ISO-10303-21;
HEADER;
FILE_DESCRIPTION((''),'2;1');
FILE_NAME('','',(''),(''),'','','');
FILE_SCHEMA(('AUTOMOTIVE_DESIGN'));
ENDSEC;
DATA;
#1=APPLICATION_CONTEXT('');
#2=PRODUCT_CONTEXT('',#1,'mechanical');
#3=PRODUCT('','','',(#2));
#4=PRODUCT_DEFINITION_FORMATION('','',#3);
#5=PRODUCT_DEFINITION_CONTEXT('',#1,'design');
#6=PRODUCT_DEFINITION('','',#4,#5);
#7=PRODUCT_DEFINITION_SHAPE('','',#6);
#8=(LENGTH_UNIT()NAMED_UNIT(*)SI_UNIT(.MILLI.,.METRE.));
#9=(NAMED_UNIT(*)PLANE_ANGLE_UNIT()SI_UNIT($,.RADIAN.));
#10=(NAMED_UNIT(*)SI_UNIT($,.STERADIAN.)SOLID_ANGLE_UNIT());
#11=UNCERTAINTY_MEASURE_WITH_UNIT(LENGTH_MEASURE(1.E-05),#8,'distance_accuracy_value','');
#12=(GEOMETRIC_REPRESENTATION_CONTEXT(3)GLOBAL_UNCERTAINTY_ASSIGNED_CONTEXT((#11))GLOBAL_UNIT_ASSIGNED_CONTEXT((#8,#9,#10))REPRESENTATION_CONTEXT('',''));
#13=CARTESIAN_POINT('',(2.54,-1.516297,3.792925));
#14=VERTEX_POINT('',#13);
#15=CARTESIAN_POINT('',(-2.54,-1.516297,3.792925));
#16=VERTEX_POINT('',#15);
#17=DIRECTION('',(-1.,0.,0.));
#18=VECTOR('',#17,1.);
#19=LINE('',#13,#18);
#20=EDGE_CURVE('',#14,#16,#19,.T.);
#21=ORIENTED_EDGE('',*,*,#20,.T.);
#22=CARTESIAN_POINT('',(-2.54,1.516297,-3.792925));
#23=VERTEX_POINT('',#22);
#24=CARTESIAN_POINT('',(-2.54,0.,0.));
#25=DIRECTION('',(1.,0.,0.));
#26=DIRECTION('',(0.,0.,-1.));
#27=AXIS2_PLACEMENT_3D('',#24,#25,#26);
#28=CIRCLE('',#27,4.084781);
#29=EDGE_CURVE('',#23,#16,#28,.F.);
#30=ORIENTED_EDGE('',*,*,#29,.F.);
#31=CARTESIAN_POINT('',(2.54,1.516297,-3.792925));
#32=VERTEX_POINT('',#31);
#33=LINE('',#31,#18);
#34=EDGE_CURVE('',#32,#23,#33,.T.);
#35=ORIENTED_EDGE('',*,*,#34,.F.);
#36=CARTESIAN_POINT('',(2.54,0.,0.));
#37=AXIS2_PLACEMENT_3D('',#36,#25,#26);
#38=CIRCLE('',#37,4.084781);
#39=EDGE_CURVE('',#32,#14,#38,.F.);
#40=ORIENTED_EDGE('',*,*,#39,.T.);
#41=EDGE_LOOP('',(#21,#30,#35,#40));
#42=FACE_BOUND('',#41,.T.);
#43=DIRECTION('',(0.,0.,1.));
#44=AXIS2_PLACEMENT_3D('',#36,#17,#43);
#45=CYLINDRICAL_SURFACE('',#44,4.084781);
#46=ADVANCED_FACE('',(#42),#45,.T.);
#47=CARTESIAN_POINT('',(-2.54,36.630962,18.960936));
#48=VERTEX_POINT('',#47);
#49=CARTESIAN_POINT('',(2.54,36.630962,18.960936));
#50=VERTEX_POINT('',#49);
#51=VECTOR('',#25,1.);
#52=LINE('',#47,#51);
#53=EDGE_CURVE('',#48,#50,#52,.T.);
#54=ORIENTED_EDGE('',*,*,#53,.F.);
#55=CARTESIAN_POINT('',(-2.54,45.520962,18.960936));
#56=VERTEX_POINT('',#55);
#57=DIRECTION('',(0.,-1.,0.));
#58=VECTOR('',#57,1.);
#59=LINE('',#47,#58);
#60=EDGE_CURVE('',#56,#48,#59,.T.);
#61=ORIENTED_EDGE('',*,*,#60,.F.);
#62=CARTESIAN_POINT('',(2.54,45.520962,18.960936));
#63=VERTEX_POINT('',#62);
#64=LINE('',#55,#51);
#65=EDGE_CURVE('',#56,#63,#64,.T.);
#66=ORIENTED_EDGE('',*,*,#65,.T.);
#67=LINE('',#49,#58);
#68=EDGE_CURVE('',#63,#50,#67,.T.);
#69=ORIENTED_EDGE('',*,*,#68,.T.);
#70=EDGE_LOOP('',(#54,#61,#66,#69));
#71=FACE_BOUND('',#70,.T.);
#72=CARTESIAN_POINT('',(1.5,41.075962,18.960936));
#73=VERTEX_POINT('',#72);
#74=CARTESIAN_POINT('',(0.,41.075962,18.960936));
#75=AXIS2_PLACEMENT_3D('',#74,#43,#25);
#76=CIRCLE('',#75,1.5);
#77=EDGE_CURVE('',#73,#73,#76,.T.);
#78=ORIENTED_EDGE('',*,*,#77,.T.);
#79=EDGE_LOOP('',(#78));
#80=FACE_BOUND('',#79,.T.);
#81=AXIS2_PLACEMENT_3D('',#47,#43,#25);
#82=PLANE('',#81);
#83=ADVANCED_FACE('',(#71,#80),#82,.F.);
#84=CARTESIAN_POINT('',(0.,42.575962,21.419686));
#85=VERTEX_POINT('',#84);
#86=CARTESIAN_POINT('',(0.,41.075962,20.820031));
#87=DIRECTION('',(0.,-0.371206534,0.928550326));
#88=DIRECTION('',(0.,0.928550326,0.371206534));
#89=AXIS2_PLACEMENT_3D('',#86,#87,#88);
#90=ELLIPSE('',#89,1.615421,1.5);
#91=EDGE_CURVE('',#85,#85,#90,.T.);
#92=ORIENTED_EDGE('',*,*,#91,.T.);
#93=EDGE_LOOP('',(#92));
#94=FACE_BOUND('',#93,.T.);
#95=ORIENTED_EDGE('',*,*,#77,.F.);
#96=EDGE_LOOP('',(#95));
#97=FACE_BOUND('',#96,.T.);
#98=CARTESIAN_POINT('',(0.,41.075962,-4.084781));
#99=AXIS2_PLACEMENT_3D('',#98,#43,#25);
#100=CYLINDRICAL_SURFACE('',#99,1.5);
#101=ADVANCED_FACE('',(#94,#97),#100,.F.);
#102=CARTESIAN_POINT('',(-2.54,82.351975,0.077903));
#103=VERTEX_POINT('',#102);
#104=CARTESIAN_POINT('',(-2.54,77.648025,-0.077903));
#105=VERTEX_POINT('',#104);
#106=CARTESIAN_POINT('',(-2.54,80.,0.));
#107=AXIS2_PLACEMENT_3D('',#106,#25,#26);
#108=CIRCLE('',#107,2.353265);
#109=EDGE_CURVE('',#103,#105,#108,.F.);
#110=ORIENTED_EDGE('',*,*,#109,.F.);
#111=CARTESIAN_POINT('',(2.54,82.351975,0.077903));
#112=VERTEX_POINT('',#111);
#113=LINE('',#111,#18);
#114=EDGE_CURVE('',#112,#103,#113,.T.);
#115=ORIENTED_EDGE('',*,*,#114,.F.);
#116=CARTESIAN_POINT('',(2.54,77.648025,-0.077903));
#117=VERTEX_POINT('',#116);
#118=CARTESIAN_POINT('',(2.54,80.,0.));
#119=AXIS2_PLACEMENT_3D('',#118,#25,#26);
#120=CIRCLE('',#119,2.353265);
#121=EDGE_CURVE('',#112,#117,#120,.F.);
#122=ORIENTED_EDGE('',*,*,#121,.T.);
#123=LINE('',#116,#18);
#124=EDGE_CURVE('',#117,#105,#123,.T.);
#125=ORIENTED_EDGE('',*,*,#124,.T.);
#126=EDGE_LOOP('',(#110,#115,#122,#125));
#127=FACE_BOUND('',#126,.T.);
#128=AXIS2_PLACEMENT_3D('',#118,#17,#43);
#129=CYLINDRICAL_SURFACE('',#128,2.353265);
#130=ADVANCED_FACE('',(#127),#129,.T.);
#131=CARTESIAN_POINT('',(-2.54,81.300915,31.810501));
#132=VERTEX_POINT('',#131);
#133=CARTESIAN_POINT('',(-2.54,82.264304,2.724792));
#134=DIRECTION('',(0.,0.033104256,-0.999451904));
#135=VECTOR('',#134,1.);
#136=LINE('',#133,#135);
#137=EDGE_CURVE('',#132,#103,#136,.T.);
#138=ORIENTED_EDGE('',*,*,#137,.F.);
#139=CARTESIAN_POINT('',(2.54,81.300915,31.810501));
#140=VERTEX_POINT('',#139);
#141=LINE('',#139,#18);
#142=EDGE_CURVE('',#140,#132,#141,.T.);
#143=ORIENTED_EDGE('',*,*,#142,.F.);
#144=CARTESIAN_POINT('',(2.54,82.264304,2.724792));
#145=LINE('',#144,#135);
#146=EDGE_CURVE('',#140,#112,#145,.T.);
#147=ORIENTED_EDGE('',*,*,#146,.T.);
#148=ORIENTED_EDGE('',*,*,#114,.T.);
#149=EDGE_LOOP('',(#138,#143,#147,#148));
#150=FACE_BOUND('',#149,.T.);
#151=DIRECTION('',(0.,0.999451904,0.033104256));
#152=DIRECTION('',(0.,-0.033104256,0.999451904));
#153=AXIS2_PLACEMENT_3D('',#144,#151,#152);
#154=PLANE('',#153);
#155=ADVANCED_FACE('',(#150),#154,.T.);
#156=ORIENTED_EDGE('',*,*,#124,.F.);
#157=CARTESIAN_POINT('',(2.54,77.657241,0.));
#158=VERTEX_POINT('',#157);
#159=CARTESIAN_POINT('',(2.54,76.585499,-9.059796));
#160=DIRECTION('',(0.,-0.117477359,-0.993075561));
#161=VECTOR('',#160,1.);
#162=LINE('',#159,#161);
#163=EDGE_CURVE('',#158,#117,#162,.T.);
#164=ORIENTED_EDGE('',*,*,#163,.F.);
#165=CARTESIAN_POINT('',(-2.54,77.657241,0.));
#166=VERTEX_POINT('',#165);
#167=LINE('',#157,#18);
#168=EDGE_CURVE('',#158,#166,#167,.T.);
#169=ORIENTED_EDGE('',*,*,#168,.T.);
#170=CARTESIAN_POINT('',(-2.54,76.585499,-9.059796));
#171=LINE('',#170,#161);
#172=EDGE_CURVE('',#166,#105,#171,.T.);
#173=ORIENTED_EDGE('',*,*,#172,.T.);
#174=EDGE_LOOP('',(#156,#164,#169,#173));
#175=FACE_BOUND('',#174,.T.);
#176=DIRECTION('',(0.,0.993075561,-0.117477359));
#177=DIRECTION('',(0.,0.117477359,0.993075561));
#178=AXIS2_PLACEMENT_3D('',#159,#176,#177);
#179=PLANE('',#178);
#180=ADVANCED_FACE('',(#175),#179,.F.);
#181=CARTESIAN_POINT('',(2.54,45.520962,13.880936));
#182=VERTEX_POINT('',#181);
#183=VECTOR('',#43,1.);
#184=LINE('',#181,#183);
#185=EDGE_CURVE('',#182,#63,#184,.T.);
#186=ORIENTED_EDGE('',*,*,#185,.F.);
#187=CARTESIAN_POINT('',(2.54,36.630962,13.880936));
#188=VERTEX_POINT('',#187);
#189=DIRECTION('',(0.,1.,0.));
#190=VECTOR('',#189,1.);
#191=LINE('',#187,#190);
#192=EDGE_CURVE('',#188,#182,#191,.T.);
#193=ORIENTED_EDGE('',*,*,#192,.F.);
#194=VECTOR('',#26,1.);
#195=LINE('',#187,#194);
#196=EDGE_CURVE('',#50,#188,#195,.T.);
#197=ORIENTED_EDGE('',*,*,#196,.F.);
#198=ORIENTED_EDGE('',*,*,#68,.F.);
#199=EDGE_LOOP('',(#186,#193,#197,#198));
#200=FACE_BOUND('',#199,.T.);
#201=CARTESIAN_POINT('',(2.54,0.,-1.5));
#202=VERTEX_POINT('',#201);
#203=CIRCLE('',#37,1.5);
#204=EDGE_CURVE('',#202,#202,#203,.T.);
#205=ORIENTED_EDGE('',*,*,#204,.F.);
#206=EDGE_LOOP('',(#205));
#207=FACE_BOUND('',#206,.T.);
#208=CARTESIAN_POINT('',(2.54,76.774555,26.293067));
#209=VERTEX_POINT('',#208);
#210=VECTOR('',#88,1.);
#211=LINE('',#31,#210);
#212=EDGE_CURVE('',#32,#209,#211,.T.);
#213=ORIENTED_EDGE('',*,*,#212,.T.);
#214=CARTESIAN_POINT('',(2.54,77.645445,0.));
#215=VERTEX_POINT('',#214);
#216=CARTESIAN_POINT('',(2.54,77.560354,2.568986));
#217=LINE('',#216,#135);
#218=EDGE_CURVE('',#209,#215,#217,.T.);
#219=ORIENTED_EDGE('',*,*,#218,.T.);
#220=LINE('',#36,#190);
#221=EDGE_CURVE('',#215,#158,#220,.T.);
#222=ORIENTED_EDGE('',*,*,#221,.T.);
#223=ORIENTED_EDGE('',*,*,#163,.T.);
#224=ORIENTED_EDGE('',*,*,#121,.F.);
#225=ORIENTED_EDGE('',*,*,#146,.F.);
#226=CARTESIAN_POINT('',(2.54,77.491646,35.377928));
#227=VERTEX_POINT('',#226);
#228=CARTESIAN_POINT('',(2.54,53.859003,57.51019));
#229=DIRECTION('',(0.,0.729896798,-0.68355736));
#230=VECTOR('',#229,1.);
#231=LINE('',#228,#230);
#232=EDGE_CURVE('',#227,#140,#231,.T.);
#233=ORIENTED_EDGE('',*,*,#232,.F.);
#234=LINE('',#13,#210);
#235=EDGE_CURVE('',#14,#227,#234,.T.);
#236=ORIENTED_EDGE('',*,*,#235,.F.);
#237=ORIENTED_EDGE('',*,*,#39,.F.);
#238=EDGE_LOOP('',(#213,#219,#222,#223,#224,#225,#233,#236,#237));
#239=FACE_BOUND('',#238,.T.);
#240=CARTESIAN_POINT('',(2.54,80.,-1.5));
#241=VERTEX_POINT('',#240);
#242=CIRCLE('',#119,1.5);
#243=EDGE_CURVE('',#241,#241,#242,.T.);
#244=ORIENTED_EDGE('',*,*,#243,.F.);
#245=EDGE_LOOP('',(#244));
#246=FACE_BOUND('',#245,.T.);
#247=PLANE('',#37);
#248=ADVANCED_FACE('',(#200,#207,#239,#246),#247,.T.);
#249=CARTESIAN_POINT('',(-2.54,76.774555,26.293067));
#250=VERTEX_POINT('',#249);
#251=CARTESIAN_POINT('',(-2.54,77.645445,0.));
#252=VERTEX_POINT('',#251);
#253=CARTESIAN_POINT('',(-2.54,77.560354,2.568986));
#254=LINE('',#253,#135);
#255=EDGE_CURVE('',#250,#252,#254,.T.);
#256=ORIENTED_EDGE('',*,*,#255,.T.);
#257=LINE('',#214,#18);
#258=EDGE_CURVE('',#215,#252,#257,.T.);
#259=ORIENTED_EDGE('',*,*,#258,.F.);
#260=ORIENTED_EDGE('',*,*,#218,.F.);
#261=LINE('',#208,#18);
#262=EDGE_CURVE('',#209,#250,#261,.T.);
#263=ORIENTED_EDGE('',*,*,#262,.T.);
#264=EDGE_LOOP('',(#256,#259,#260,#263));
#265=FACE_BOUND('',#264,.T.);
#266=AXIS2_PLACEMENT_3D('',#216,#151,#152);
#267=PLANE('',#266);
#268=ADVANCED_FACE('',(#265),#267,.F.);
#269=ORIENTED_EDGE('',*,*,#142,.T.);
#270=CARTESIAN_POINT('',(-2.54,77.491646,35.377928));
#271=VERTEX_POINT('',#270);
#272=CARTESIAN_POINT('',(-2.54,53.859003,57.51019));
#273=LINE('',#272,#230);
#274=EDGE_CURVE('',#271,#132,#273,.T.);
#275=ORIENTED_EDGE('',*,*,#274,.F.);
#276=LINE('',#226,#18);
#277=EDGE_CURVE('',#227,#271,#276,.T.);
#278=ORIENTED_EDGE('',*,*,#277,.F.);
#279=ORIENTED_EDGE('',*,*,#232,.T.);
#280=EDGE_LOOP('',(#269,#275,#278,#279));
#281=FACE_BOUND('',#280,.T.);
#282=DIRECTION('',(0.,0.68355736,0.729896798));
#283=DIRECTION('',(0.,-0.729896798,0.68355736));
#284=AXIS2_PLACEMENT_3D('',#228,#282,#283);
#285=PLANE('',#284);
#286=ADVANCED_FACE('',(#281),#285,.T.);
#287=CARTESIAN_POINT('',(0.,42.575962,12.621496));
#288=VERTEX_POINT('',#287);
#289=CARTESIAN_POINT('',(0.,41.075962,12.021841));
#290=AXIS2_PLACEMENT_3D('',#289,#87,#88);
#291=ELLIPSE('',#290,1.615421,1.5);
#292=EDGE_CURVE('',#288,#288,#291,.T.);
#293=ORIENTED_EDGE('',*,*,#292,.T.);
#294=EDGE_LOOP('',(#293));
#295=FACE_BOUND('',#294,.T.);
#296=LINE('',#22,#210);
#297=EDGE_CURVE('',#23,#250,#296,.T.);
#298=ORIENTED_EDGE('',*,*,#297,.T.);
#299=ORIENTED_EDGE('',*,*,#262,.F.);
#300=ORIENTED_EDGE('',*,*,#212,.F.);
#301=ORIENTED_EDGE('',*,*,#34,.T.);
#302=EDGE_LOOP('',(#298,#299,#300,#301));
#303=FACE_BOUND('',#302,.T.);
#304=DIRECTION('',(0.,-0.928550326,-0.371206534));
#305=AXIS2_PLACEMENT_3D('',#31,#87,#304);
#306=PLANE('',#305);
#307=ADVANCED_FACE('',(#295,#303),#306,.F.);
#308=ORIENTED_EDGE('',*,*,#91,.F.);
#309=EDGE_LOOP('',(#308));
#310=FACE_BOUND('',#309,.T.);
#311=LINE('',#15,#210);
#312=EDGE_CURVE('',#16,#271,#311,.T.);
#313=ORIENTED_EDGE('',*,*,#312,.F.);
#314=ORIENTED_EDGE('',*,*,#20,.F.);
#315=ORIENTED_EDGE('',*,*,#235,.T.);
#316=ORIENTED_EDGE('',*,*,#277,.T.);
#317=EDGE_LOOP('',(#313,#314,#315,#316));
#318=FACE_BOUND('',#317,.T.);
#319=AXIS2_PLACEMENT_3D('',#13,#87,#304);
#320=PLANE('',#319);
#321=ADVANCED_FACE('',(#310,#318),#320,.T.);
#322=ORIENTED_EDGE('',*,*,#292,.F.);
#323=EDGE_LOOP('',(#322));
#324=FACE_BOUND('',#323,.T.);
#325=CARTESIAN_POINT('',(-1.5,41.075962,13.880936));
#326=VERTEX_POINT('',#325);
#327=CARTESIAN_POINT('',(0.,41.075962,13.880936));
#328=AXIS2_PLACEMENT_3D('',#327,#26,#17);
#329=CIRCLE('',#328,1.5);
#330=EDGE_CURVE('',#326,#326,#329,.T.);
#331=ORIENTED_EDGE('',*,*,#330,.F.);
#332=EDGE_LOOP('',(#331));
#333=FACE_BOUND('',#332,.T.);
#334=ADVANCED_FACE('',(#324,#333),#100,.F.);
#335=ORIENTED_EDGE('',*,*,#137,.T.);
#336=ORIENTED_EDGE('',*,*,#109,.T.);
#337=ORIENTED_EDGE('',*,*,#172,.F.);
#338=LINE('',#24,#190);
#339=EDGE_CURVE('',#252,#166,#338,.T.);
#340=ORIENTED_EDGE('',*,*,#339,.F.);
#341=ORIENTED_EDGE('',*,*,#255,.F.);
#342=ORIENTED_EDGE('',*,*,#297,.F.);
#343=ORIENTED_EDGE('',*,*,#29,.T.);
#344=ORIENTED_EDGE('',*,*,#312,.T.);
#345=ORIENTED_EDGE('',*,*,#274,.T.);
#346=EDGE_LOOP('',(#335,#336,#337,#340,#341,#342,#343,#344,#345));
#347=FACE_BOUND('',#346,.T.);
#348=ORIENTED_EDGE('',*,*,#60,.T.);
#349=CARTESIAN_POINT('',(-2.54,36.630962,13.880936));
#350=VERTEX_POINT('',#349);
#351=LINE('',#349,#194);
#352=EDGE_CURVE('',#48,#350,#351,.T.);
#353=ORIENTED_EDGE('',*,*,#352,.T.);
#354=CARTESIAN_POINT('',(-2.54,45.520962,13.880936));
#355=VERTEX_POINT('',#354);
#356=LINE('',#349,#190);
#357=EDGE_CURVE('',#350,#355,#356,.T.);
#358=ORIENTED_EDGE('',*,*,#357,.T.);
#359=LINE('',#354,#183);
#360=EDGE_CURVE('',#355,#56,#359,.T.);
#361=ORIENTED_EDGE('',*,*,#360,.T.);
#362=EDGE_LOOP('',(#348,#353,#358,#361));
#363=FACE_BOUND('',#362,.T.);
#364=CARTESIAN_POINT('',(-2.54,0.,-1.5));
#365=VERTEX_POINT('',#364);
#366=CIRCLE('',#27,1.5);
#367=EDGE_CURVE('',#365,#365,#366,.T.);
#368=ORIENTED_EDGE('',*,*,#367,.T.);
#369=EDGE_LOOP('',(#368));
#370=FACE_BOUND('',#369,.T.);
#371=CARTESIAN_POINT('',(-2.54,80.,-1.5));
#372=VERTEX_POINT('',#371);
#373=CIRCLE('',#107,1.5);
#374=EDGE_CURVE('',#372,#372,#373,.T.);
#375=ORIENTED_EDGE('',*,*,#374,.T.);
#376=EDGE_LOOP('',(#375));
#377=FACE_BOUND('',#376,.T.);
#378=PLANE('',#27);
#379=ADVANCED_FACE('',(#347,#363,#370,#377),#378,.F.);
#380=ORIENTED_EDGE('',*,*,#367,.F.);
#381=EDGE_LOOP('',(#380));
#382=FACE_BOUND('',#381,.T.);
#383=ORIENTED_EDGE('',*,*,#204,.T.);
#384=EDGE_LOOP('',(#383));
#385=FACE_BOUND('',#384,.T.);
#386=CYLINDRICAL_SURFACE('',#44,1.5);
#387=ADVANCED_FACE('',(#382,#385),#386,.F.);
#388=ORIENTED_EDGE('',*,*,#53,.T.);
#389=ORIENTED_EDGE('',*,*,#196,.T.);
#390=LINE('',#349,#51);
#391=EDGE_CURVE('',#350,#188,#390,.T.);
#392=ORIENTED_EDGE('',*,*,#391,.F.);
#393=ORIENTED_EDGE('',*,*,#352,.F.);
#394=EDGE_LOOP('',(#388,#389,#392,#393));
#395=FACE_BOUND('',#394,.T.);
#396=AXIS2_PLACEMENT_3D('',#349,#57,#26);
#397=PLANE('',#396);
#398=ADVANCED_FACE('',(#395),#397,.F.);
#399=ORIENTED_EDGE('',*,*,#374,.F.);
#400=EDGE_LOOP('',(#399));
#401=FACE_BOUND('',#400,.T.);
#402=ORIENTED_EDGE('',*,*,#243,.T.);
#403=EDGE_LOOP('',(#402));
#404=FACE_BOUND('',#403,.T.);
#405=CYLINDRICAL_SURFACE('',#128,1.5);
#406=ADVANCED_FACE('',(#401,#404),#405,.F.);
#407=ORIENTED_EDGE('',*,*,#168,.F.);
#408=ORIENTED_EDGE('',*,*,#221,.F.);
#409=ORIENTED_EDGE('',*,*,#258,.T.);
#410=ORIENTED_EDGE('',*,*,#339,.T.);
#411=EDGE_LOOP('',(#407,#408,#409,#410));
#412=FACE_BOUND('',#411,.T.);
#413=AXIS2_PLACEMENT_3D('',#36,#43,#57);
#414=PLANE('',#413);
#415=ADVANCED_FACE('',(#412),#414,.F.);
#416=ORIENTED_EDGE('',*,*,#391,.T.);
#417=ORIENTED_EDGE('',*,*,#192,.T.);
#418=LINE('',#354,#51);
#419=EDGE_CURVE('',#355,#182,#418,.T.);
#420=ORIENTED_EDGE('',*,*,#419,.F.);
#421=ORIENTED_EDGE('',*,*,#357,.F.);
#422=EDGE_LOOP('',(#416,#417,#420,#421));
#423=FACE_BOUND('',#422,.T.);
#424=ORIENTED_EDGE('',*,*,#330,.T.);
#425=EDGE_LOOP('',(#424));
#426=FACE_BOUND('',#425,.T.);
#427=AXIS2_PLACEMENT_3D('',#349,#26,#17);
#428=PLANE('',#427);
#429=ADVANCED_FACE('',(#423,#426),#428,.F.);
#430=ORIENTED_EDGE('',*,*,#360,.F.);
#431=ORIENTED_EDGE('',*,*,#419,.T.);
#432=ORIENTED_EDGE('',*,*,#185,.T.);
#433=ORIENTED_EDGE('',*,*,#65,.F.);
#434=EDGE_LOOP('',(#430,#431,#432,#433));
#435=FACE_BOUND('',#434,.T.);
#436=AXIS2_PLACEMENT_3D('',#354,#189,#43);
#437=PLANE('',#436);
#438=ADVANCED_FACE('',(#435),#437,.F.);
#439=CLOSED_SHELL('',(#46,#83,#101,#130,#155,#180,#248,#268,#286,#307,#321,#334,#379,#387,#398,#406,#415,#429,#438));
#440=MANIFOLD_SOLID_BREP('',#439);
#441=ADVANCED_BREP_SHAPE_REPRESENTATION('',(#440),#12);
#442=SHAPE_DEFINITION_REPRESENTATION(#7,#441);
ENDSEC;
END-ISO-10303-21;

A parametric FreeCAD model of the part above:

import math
import FreeCAD as App
import Part
import Sketcher

V = App.Vector
Q = App.Units.Quantity

doc = App.newDocument("Part")
body = doc.addObject("PartDesign::Body", "Body")

# Sketch on YZ plane
sketch1 = body.newObject("Sketcher::SketchObject", "Sketch")
sketch1.AttachmentSupport = (doc.getObject("YZ_Plane"), [""])
sketch1.MapMode = "FlatFace"
sketch1.addGeometry([
    Part.ArcOfCircle(Part.Circle(V(0, 0, 0), V(0, 0, 1), 4.084781), math.radians(111.790047), math.radians(291.790047)),  # 0
    Part.LineSegment(V(1.516297, -3.792925, 0), V(11.004065, 0, 0)),  # 1
    Part.LineSegment(V(11.004065, 0, 0), V(76.774555, 26.293067, 0)),  # 2
    Part.LineSegment(V(76.774555, 26.293067, 0), V(77.645445, 0, 0)),  # 3
    Part.LineSegment(V(77.645445, 0, 0), V(77.657241, 0, 0)),  # 4
    Part.LineSegment(V(77.657241, 0, 0), V(77.648025, -0.077903, 0)),  # 5
    Part.ArcOfCircle(Part.Circle(V(80, 0, 0), V(0, 0, 1), 2.353265), math.radians(-178.102919), math.radians(1.897081)),  # 6
    Part.LineSegment(V(82.351975, 0.077903, 0), V(81.300915, 31.810501, 0)),  # 7
    Part.LineSegment(V(81.300915, 31.810501, 0), V(77.491646, 35.377928, 0)),  # 8
    Part.LineSegment(V(77.491646, 35.377928, 0), V(-1.516297, 3.792925, 0)),  # 9
    Part.ArcOfCircle(Part.Circle(V(0, 0, 0), V(0, 0, 1), 1.5), math.radians(-90), math.radians(0)),  # 10
    Part.ArcOfCircle(Part.Circle(V(0, 0, 0), V(0, 0, 1), 1.5), math.radians(0), math.radians(270)),  # 11
    Part.ArcOfCircle(Part.Circle(V(80, 0, 0), V(0, 0, 1), 1.5), math.radians(-90), math.radians(180)),  # 12
    Part.ArcOfCircle(Part.Circle(V(80, 0, 0), V(0, 0, 1), 1.5), math.radians(180), math.radians(270)),  # 13
], False)
sketch1.addConstraint([
    Sketcher.Constraint("Coincident", 0, 2, 1, 1),
    Sketcher.Constraint("Coincident", 1, 2, 2, 1),
    Sketcher.Constraint("Coincident", 2, 2, 3, 1),
    Sketcher.Constraint("Coincident", 3, 2, 4, 1),
    Sketcher.Constraint("Coincident", 4, 2, 5, 1),
    Sketcher.Constraint("Coincident", 5, 2, 6, 1),
    Sketcher.Constraint("Coincident", 6, 2, 7, 1),
    Sketcher.Constraint("Coincident", 7, 2, 8, 1),
    Sketcher.Constraint("Coincident", 8, 2, 9, 1),
    Sketcher.Constraint("Coincident", 9, 2, 0, 1),
    Sketcher.Constraint("Coincident", 10, 1, 11, 2),
    Sketcher.Constraint("Coincident", 11, 1, 10, 2),
    Sketcher.Constraint("Coincident", 12, 1, 13, 2),
    Sketcher.Constraint("Coincident", 13, 1, 12, 2),
    Sketcher.Constraint("Horizontal", 4),
    Sketcher.Constraint("Coincident", 0, 3, -1, 1),
    Sketcher.Constraint("Coincident", 10, 3, -1, 1),
    Sketcher.Constraint("Coincident", 12, 3, 6, 3),
    Sketcher.Constraint("PointOnObject", 6, 3, -1),
    Sketcher.Constraint("PointOnObject", 13, 3, -1),
    Sketcher.Constraint("PointOnObject", 1, 2, -1),
    Sketcher.Constraint("PointOnObject", 3, 2, -1),
    Sketcher.Constraint("PointOnObject", 10, 1, -2),
    Sketcher.Constraint("PointOnObject", 11, 1, -1),
    Sketcher.Constraint("PointOnObject", 13, 1, -1),
    Sketcher.Constraint("Distance", 7, Q("1.25 in")),
    Sketcher.Constraint("Radius", 10, 1.5),
    Sketcher.Constraint("Radius", 11, 1.5),
    Sketcher.Constraint("Radius", 12, 1.5),
    Sketcher.Constraint("Radius", 0, 4.084781),
    Sketcher.Constraint("Radius", 6, 2.353265),
    Sketcher.Constraint("DistanceX", -1, 1, 6, 3, 80.0),
    Sketcher.Constraint("DistanceY", -1, 1, 7, 2, 31.810501),
    Sketcher.Constraint("DistanceX", -1, 1, 12, 1, 80.0),
    Sketcher.Constraint("DistanceX", 8, 2, 3, 2, 0.153798),
    Sketcher.Constraint("Distance", 1, 10.217828),
    Sketcher.Constraint("Distance", 2, 70.831368),
    Sketcher.Constraint("Distance", 9, 85.087412),
    Sketcher.Constraint("DistanceX", 4, 1, 4, 2, 0.011796),
    Sketcher.Constraint("DistanceX", -1, 1, 4, 2, 77.657241),
    Sketcher.Constraint("DistanceX", 1, 2, 2, 2, 65.77049),
    Sketcher.Constraint("DistanceY", 0, 2, 2, 2, 30.085991),
    Sketcher.Constraint("DistanceX", 3, 2, 5, 2, 0.00258),
    Sketcher.Constraint("DistanceX", 2, 2, 7, 2, 4.52636),
    Sketcher.Constraint("DistanceY", 2, 2, 8, 2, 9.084861),
])
pad1 = body.newObject("PartDesign::Pad", "Pad")
pad1.Profile = sketch1
pad1.Length = Q("0.2 in")
pad1.Midplane = True

# Sketch on YZ plane
sketch2 = body.newObject("Sketcher::SketchObject", "Sketch001")
sketch2.AttachmentSupport = (doc.getObject("YZ_Plane"), [""])
sketch2.MapMode = "FlatFace"
sketch2.AttachmentOffset = App.Placement(V(0, 0, 0.1 * 25.4), App.Rotation())
sketch2.addGeometry([
    Part.LineSegment(V(46, 19, 0), V(37, 19, 0)),
    Part.LineSegment(V(37, 19, 0), V(37, 14, 0)),
    Part.LineSegment(V(37, 14, 0), V(46, 14, 0)),
    Part.LineSegment(V(46, 14, 0), V(46, 19, 0)),
], False)
sketch2.addConstraint([
    Sketcher.Constraint("Coincident", 0, 2, 1, 1),
    Sketcher.Constraint("Coincident", 1, 2, 2, 1),
    Sketcher.Constraint("Coincident", 2, 2, 3, 1),
    Sketcher.Constraint("Coincident", 3, 2, 0, 1),
    Sketcher.Constraint("Horizontal", 0),
    Sketcher.Constraint("Vertical", 1),
    Sketcher.Constraint("Horizontal", 2),
    Sketcher.Constraint("Vertical", 3),
    Sketcher.Constraint("DistanceY", 1, 2, 1, 1, Q("0.2 in")),
    Sketcher.Constraint("DistanceX", 0, 2, 0, 1, Q("0.35 in")),
    Sketcher.Constraint("DistanceX", -1, 1, 0, 2, 36.630962),
    Sketcher.Constraint("DistanceY", -1, 1, 0, 2, 18.960936),
])
pocket1 = body.newObject("PartDesign::Pocket", "Pocket")
pocket1.Profile = sketch2
pocket1.Length = Q("0.2 in")

# Sketch on XY plane
sketch3 = body.newObject("Sketcher::SketchObject", "Sketch002")
sketch3.AttachmentSupport = (doc.getObject("XY_Plane"), [""])
sketch3.MapMode = "FlatFace"
sketch3.AttachmentOffset = App.Placement(V(0, 0, 13.880936), App.Rotation())
sketch3.addGeometry(Part.Circle(V(0, 41.1, 0), V(0, 0, 1), 1.5), False)
sketch3.addConstraint([
    Sketcher.Constraint("PointOnObject", 0, 3, -2),
    Sketcher.Constraint("Diameter", 0, 3.0),
    Sketcher.Constraint("DistanceY", -1, 1, 0, 3, 41.075962),
])
pocket2 = body.newObject("PartDesign::Pocket", "Pocket001")
pocket2.Profile = sketch3
pocket2.Type = "ThroughAll"
pocket2.Midplane = True

doc.recompute()
